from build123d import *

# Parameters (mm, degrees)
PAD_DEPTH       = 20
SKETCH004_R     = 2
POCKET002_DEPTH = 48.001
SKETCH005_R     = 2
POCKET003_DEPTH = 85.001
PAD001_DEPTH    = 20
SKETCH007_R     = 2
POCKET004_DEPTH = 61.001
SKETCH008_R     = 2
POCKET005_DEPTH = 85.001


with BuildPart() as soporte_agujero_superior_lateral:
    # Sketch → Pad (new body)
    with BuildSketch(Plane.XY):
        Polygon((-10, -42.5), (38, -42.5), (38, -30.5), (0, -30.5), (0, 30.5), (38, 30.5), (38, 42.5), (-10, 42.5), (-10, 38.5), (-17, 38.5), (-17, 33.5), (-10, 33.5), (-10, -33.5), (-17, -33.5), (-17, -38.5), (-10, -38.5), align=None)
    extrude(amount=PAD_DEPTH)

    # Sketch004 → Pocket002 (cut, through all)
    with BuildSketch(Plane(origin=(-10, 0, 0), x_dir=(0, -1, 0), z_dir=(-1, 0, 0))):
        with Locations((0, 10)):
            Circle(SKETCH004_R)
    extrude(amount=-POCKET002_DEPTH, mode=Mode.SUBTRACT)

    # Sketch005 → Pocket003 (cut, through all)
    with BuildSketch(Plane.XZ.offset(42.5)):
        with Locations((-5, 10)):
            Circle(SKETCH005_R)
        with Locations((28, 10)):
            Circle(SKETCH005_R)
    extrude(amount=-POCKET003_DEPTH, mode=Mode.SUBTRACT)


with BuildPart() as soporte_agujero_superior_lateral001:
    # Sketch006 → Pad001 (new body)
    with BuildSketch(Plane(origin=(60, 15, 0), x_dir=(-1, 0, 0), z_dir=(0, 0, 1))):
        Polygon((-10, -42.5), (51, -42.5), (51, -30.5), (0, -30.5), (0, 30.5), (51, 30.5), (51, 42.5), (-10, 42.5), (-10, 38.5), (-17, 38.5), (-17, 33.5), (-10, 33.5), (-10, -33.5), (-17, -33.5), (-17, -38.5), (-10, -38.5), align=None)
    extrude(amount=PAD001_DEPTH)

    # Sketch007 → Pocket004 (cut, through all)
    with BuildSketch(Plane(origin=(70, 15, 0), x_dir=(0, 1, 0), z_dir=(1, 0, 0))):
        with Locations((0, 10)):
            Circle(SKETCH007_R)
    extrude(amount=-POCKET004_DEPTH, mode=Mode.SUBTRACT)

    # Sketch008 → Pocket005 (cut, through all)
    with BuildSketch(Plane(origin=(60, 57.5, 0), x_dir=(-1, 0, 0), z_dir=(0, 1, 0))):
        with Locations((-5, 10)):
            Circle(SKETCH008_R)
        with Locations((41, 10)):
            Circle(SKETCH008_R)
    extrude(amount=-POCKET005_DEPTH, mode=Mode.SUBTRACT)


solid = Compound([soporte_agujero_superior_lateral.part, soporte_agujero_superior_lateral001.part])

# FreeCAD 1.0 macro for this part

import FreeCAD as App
import Part
import Sketcher

doc = App.newDocument("Part")
body = doc.addObject("PartDesign::Body", "Body")

sketch1 = doc.addObject("Sketcher::SketchObject", "Sketch")
body.addObject(sketch1)
sketch1.AttachmentSupport = (doc.XY_Plane, [""])
sketch1.MapMode = "FlatFace"
sketch1.addGeometry(Part.LineSegment(App.Vector(-10, -42.5, 0), App.Vector(38, -42.5, 0)), False)
sketch1.addGeometry(Part.LineSegment(App.Vector(38, -42.5, 0), App.Vector(38, -30.5, 0)), False)
sketch1.addGeometry(Part.LineSegment(App.Vector(38, -30.5, 0), App.Vector(0, -30.5, 0)), False)
sketch1.addGeometry(Part.LineSegment(App.Vector(0, -30.5, 0), App.Vector(0, 30.5, 0)), False)
sketch1.addGeometry(Part.LineSegment(App.Vector(0, 30.5, 0), App.Vector(38, 30.5, 0)), False)
sketch1.addGeometry(Part.LineSegment(App.Vector(38, 30.5, 0), App.Vector(38, 42.5, 0)), False)
sketch1.addGeometry(Part.LineSegment(App.Vector(38, 42.5, 0), App.Vector(-10, 42.5, 0)), False)
sketch1.addGeometry(Part.LineSegment(App.Vector(-10, 42.5, 0), App.Vector(-10, 38.5, 0)), False)
sketch1.addGeometry(Part.LineSegment(App.Vector(-10, 38.5, 0), App.Vector(-17, 38.5, 0)), False)
sketch1.addGeometry(Part.LineSegment(App.Vector(-17, 38.5, 0), App.Vector(-17, 33.5, 0)), False)
sketch1.addGeometry(Part.LineSegment(App.Vector(-17, 33.5, 0), App.Vector(-10, 33.5, 0)), False)
sketch1.addGeometry(Part.LineSegment(App.Vector(-10, 33.5, 0), App.Vector(-10, -33.5, 0)), False)
sketch1.addGeometry(Part.LineSegment(App.Vector(-10, -33.5, 0), App.Vector(-17, -33.5, 0)), False)
sketch1.addGeometry(Part.LineSegment(App.Vector(-17, -33.5, 0), App.Vector(-17, -38.5, 0)), False)
sketch1.addGeometry(Part.LineSegment(App.Vector(-17, -38.5, 0), App.Vector(-10, -38.5, 0)), False)
sketch1.addGeometry(Part.LineSegment(App.Vector(-10, -38.5, 0), App.Vector(-10, -42.5, 0)), False)
sketch1.addConstraint(Sketcher.Constraint("Coincident", 0, 2, 1, 1))
sketch1.addConstraint(Sketcher.Constraint("Coincident", 1, 2, 2, 1))
sketch1.addConstraint(Sketcher.Constraint("Coincident", 2, 2, 3, 1))
sketch1.addConstraint(Sketcher.Constraint("Coincident", 3, 2, 4, 1))
sketch1.addConstraint(Sketcher.Constraint("Coincident", 4, 2, 5, 1))
sketch1.addConstraint(Sketcher.Constraint("Coincident", 5, 2, 6, 1))
sketch1.addConstraint(Sketcher.Constraint("Coincident", 6, 2, 7, 1))
sketch1.addConstraint(Sketcher.Constraint("Coincident", 7, 2, 8, 1))
sketch1.addConstraint(Sketcher.Constraint("Coincident", 8, 2, 9, 1))
sketch1.addConstraint(Sketcher.Constraint("Coincident", 9, 2, 10, 1))
sketch1.addConstraint(Sketcher.Constraint("Coincident", 10, 2, 11, 1))
sketch1.addConstraint(Sketcher.Constraint("Coincident", 11, 2, 12, 1))
sketch1.addConstraint(Sketcher.Constraint("Coincident", 12, 2, 13, 1))
sketch1.addConstraint(Sketcher.Constraint("Coincident", 13, 2, 14, 1))
sketch1.addConstraint(Sketcher.Constraint("Coincident", 14, 2, 15, 1))
sketch1.addConstraint(Sketcher.Constraint("Coincident", 15, 2, 0, 1))
sketch1.addConstraint(Sketcher.Constraint("Horizontal", 0))
sketch1.addConstraint(Sketcher.Constraint("Vertical", 1))
sketch1.addConstraint(Sketcher.Constraint("Horizontal", 2))
sketch1.addConstraint(Sketcher.Constraint("Vertical", 3))
sketch1.addConstraint(Sketcher.Constraint("Horizontal", 4))
sketch1.addConstraint(Sketcher.Constraint("Vertical", 5))
sketch1.addConstraint(Sketcher.Constraint("Horizontal", 6))
sketch1.addConstraint(Sketcher.Constraint("Vertical", 7))
sketch1.addConstraint(Sketcher.Constraint("Horizontal", 8))
sketch1.addConstraint(Sketcher.Constraint("Vertical", 9))
sketch1.addConstraint(Sketcher.Constraint("Horizontal", 10))
sketch1.addConstraint(Sketcher.Constraint("Vertical", 11))
sketch1.addConstraint(Sketcher.Constraint("Horizontal", 12))
sketch1.addConstraint(Sketcher.Constraint("Vertical", 13))
sketch1.addConstraint(Sketcher.Constraint("Horizontal", 14))
sketch1.addConstraint(Sketcher.Constraint("Vertical", 15))
sketch1.addConstraint(Sketcher.Constraint("Symmetric", 2, 2, 3, 2, -1, 1))
sketch1.addConstraint(Sketcher.Constraint("Symmetric", 0, 2, 5, 2, -1))
sketch1.addConstraint(Sketcher.Constraint("Symmetric", 9, 2, 12, 2, -1))
sketch1.addConstraint(Sketcher.Constraint("Symmetric", 7, 2, 14, 2, -1))
sketch1.addConstraint(Sketcher.Constraint("Vertical", 7, 2, 10, 2))
sketch1.addConstraint(Sketcher.Constraint("DistanceX", 0, 1, 0, 2, 48.0))
sketch1.addConstraint(Sketcher.Constraint("DistanceX", 2, 2, 2, 1, 38.0))
sketch1.addConstraint(Sketcher.Constraint("DistanceX", 8, 2, 8, 1, 7.0))
sketch1.addConstraint(Sketcher.Constraint("DistanceY", 1, 1, 1, 2, 12.0))
sketch1.addConstraint(Sketcher.Constraint("DistanceY", 3, 1, 3, 2, 61.0))
sketch1.addConstraint(Sketcher.Constraint("DistanceY", 7, 2, 7, 1, 4.0))
sketch1.addConstraint(Sketcher.Constraint("DistanceY", 9, 2, 9, 1, 5.0))
pad1 = doc.addObject("PartDesign::Pad", "Pad")
body.addObject(pad1)
pad1.Profile = sketch1
pad1.Length = 20

sketch2 = doc.addObject("Sketcher::SketchObject", "Sketch001")
body.addObject(sketch2)
sketch2.AttachmentSupport = (doc.YZ_Plane, [""])
sketch2.MapMode = "FlatFace"
sketch2.AttachmentOffset = App.Placement(App.Vector(0, 0, -10), App.Rotation())
sketch2.addGeometry(Part.Circle(App.Vector(0, 10, 0), App.Vector(0, 0, 1), 2), False)
sketch2.addConstraint(Sketcher.Constraint("PointOnObject", 0, 3, -2))
sketch2.addConstraint(Sketcher.Constraint("Diameter", 0, 4.0))
sketch2.addConstraint(Sketcher.Constraint("DistanceY", -1, 1, 0, 3, 10.0))
pocket1 = doc.addObject("PartDesign::Pocket", "Pocket")
body.addObject(pocket1)
pocket1.Profile = sketch2
pocket1.Type = "ThroughAll"
pocket1.Reversed = True

sketch3 = doc.addObject("Sketcher::SketchObject", "Sketch002")
body.addObject(sketch3)
sketch3.AttachmentSupport = (doc.XZ_Plane, [""])
sketch3.MapMode = "FlatFace"
sketch3.AttachmentOffset = App.Placement(App.Vector(0, 0, 42.5), App.Rotation())
sketch3.addGeometry(Part.Circle(App.Vector(-5, 10, 0), App.Vector(0, 0, 1), 2), False)
sketch3.addGeometry(Part.Circle(App.Vector(28, 10, 0), App.Vector(0, 0, 1), 2), False)
sketch3.addConstraint(Sketcher.Constraint("Equal", 0, 1))
sketch3.addConstraint(Sketcher.Constraint("Horizontal", 0, 3, 1, 3))
sketch3.addConstraint(Sketcher.Constraint("Diameter", 0, 4.0))
sketch3.addConstraint(Sketcher.Constraint("DistanceX", 0, 3, -1, 1, 5.0))
sketch3.addConstraint(Sketcher.Constraint("DistanceY", -1, 1, 0, 3, 10.0))
sketch3.addConstraint(Sketcher.Constraint("DistanceX", -1, 1, 1, 3, 28.0))
pocket2 = doc.addObject("PartDesign::Pocket", "Pocket001")
body.addObject(pocket2)
pocket2.Profile = sketch3
pocket2.Type = "ThroughAll"
body2 = doc.addObject("PartDesign::Body", "Body001")

sketch4 = doc.addObject("Sketcher::SketchObject", "Sketch003")
body2.addObject(sketch4)
sketch4.AttachmentSupport = (doc.getObject("XY_Plane001"), [""])
sketch4.MapMode = "FlatFace"
sketch4.addGeometry(Part.LineSegment(App.Vector(70, 57.5, 0), App.Vector(9, 57.5, 0)), False)
sketch4.addGeometry(Part.LineSegment(App.Vector(9, 57.5, 0), App.Vector(9, 45.5, 0)), False)
sketch4.addGeometry(Part.LineSegment(App.Vector(9, 45.5, 0), App.Vector(60, 45.5, 0)), False)
sketch4.addGeometry(Part.LineSegment(App.Vector(60, 45.5, 0), App.Vector(60, -15.5, 0)), False)
sketch4.addGeometry(Part.LineSegment(App.Vector(60, -15.5, 0), App.Vector(9, -15.5, 0)), False)
sketch4.addGeometry(Part.LineSegment(App.Vector(9, -15.5, 0), App.Vector(9, -27.5, 0)), False)
sketch4.addGeometry(Part.LineSegment(App.Vector(9, -27.5, 0), App.Vector(70, -27.5, 0)), False)
sketch4.addGeometry(Part.LineSegment(App.Vector(70, -27.5, 0), App.Vector(70, -23.5, 0)), False)
sketch4.addGeometry(Part.LineSegment(App.Vector(70, -23.5, 0), App.Vector(77, -23.5, 0)), False)
sketch4.addGeometry(Part.LineSegment(App.Vector(77, -23.5, 0), App.Vector(77, -18.5, 0)), False)
sketch4.addGeometry(Part.LineSegment(App.Vector(77, -18.5, 0), App.Vector(70, -18.5, 0)), False)
sketch4.addGeometry(Part.LineSegment(App.Vector(70, -18.5, 0), App.Vector(70, 48.5, 0)), False)
sketch4.addGeometry(Part.LineSegment(App.Vector(70, 48.5, 0), App.Vector(77, 48.5, 0)), False)
sketch4.addGeometry(Part.LineSegment(App.Vector(77, 48.5, 0), App.Vector(77, 53.5, 0)), False)
sketch4.addGeometry(Part.LineSegment(App.Vector(77, 53.5, 0), App.Vector(70, 53.5, 0)), False)
sketch4.addGeometry(Part.LineSegment(App.Vector(70, 53.5, 0), App.Vector(70, 57.5, 0)), False)
sketch4.addConstraint(Sketcher.Constraint("Coincident", 0, 2, 1, 1))
sketch4.addConstraint(Sketcher.Constraint("Coincident", 1, 2, 2, 1))
sketch4.addConstraint(Sketcher.Constraint("Coincident", 2, 2, 3, 1))
sketch4.addConstraint(Sketcher.Constraint("Coincident", 3, 2, 4, 1))
sketch4.addConstraint(Sketcher.Constraint("Coincident", 4, 2, 5, 1))
sketch4.addConstraint(Sketcher.Constraint("Coincident", 5, 2, 6, 1))
sketch4.addConstraint(Sketcher.Constraint("Coincident", 6, 2, 7, 1))
sketch4.addConstraint(Sketcher.Constraint("Coincident", 7, 2, 8, 1))
sketch4.addConstraint(Sketcher.Constraint("Coincident", 8, 2, 9, 1))
sketch4.addConstraint(Sketcher.Constraint("Coincident", 9, 2, 10, 1))
sketch4.addConstraint(Sketcher.Constraint("Coincident", 10, 2, 11, 1))
sketch4.addConstraint(Sketcher.Constraint("Coincident", 11, 2, 12, 1))
sketch4.addConstraint(Sketcher.Constraint("Coincident", 12, 2, 13, 1))
sketch4.addConstraint(Sketcher.Constraint("Coincident", 13, 2, 14, 1))
sketch4.addConstraint(Sketcher.Constraint("Coincident", 14, 2, 15, 1))
sketch4.addConstraint(Sketcher.Constraint("Coincident", 15, 2, 0, 1))
sketch4.addConstraint(Sketcher.Constraint("Horizontal", 0))
sketch4.addConstraint(Sketcher.Constraint("Vertical", 1))
sketch4.addConstraint(Sketcher.Constraint("Horizontal", 2))
sketch4.addConstraint(Sketcher.Constraint("Vertical", 3))
sketch4.addConstraint(Sketcher.Constraint("Horizontal", 4))
sketch4.addConstraint(Sketcher.Constraint("Vertical", 5))
sketch4.addConstraint(Sketcher.Constraint("Horizontal", 6))
sketch4.addConstraint(Sketcher.Constraint("Vertical", 7))
sketch4.addConstraint(Sketcher.Constraint("Horizontal", 8))
sketch4.addConstraint(Sketcher.Constraint("Vertical", 9))
sketch4.addConstraint(Sketcher.Constraint("Horizontal", 10))
sketch4.addConstraint(Sketcher.Constraint("Vertical", 11))
sketch4.addConstraint(Sketcher.Constraint("Horizontal", 12))
sketch4.addConstraint(Sketcher.Constraint("Vertical", 13))
sketch4.addConstraint(Sketcher.Constraint("Horizontal", 14))
sketch4.addConstraint(Sketcher.Constraint("Vertical", 15))
sketch4.addConstraint(Sketcher.Constraint("Vertical", 1, 2, 4, 2))
sketch4.addConstraint(Sketcher.Constraint("Vertical", 7, 2, 10, 2))
sketch4.addConstraint(Sketcher.Constraint("Vertical", 9, 2, 12, 2))
sketch4.addConstraint(Sketcher.Constraint("Vertical", 11, 2, 14, 2))
sketch4.addConstraint(Sketcher.Constraint("Equal", 6, 3))
sketch4.addConstraint(Sketcher.Constraint("Equal", 1, 5))
sketch4.addConstraint(Sketcher.Constraint("Equal", 9, 13))
sketch4.addConstraint(Sketcher.Constraint("Equal", 7, 15))
sketch4.addConstraint(Sketcher.Constraint("DistanceX", 0, 2, 0, 1, 61.0))
sketch4.addConstraint(Sketcher.Constraint("DistanceX", 2, 1, 2, 2, 51.0))
sketch4.addConstraint(Sketcher.Constraint("DistanceX", 8, 1, 8, 2, 7.0))
sketch4.addConstraint(Sketcher.Constraint("DistanceY", 1, 2, 1, 1, 12.0))
sketch4.addConstraint(Sketcher.Constraint("DistanceY", 7, 1, 7, 2, 4.0))
sketch4.addConstraint(Sketcher.Constraint("DistanceY", 9, 1, 9, 2, 5.0))
sketch4.addConstraint(Sketcher.Constraint("DistanceX", -1, 1, 0, 2, 9.0))
sketch4.addConstraint(Sketcher.Constraint("DistanceY", -1, 1, 0, 2, 57.5))
pad2 = doc.addObject("PartDesign::Pad", "Pad001")
body2.addObject(pad2)
pad2.Profile = sketch4
pad2.Length = 20

sketch5 = doc.addObject("Sketcher::SketchObject", "Sketch004")
body2.addObject(sketch5)
sketch5.AttachmentSupport = (doc.getObject("YZ_Plane001"), [""])
sketch5.MapMode = "FlatFace"
sketch5.AttachmentOffset = App.Placement(App.Vector(0, 0, 70), App.Rotation())
sketch5.addGeometry(Part.Circle(App.Vector(15, 10, 0), App.Vector(0, 0, 1), 2), False)
sketch5.addConstraint(Sketcher.Constraint("Diameter", 0, 4.0))
sketch5.addConstraint(Sketcher.Constraint("DistanceX", -1, 1, 0, 3, 15.0))
sketch5.addConstraint(Sketcher.Constraint("DistanceY", -1, 1, 0, 3, 10.0))
pocket3 = doc.addObject("PartDesign::Pocket", "Pocket002")
body2.addObject(pocket3)
pocket3.Profile = sketch5
pocket3.Type = "ThroughAll"

sketch6 = doc.addObject("Sketcher::SketchObject", "Sketch005")
body2.addObject(sketch6)
sketch6.AttachmentSupport = (doc.getObject("XZ_Plane001"), [""])
sketch6.MapMode = "FlatFace"
sketch6.AttachmentOffset = App.Placement(App.Vector(0, 0, -57.5), App.Rotation())
sketch6.addGeometry(Part.Circle(App.Vector(65, 10, 0), App.Vector(0, 0, 1), 2), False)
sketch6.addGeometry(Part.Circle(App.Vector(19, 10, 0), App.Vector(0, 0, 1), 2), False)
sketch6.addConstraint(Sketcher.Constraint("Equal", 0, 1))
sketch6.addConstraint(Sketcher.Constraint("Horizontal", 0, 3, 1, 3))
sketch6.addConstraint(Sketcher.Constraint("Diameter", 0, 4.0))
sketch6.addConstraint(Sketcher.Constraint("DistanceX", -1, 1, 0, 3, 65.0))
sketch6.addConstraint(Sketcher.Constraint("DistanceY", -1, 1, 0, 3, 10.0))
sketch6.addConstraint(Sketcher.Constraint("DistanceX", -1, 1, 1, 3, 19.0))
pocket4 = doc.addObject("PartDesign::Pocket", "Pocket003")
body2.addObject(pocket4)
pocket4.Profile = sketch6
pocket4.Type = "ThroughAll"
pocket4.Reversed = True

doc.recompute()
